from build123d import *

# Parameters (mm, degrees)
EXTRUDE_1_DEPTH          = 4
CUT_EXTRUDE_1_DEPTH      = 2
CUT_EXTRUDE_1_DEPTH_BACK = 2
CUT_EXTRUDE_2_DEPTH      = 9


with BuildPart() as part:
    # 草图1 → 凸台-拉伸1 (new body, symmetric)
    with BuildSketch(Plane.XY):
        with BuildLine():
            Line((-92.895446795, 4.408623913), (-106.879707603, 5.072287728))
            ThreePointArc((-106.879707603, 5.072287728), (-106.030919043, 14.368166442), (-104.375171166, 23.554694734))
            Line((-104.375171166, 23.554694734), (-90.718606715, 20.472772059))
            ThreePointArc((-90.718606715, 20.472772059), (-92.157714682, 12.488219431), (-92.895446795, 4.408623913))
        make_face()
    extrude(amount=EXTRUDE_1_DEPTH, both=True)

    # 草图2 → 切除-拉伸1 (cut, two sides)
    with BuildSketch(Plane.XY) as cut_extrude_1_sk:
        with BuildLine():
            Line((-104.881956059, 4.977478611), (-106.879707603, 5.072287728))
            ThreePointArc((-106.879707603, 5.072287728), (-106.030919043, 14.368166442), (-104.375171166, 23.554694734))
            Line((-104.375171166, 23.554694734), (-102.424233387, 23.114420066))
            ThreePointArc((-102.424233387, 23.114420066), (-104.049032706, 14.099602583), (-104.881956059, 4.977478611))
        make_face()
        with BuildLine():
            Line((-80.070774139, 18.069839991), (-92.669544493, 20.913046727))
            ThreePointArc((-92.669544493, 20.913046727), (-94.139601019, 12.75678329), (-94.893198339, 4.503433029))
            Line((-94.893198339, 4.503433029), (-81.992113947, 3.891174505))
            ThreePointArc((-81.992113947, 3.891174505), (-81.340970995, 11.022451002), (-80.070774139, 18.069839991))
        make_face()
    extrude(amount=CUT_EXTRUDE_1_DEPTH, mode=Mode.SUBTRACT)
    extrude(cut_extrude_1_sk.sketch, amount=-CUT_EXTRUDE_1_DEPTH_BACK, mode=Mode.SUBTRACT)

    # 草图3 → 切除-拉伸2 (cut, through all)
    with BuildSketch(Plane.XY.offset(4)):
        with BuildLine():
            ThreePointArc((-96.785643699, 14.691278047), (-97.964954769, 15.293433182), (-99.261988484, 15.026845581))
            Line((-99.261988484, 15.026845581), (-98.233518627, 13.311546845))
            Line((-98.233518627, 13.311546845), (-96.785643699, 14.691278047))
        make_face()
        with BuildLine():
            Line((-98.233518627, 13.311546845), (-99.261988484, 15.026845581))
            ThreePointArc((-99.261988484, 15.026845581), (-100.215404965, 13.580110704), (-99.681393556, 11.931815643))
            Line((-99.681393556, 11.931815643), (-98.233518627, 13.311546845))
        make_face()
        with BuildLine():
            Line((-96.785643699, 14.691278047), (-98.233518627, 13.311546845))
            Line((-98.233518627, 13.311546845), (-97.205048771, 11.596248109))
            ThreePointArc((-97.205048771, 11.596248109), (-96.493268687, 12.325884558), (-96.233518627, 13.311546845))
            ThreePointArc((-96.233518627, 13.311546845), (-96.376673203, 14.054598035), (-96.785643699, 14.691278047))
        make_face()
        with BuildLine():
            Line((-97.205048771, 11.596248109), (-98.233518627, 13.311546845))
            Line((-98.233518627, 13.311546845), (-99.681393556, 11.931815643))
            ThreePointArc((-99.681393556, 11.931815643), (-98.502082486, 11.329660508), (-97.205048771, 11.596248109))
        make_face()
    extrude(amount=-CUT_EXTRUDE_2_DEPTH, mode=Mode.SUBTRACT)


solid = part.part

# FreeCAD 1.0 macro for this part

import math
import FreeCAD as App
import Part
import Sketcher

V = App.Vector
Q = App.Units.Quantity

doc = App.newDocument("Part")
body = doc.addObject("PartDesign::Body", "Body")

# Sketch on XY plane
sketch1 = body.newObject("Sketcher::SketchObject", "Sketch")
sketch1.AttachmentSupport = (doc.getObject("XY_Plane"), [""])
sketch1.MapMode = "FlatFace"
sketch1.addGeometry([
    Part.LineSegment(V(-106.879708, 5.072288, 0), V(-92.895447, 4.408624, 0)),
    Part.ArcOfCircle(Part.Circle(V(0, 0, 0), V(0, 0, 1), 93), math.radians(167.282901), math.radians(177.282901)),
    Part.LineSegment(V(-90.718607, 20.472772, 0), V(-104.375171, 23.554695, 0)),
    Part.ArcOfCircle(Part.Circle(V(0, 0, 0), V(0, 0, 1), 107), math.radians(167.282901), math.radians(177.282901)),
], False)
sketch1.addConstraint([
    Sketcher.Constraint("Coincident", 0, 2, 1, 2),
    Sketcher.Constraint("Coincident", 1, 1, 2, 1),
    Sketcher.Constraint("Coincident", 2, 2, 3, 1),
    Sketcher.Constraint("Coincident", 3, 2, 0, 1),
    Sketcher.Constraint("Coincident", 1, 3, -1, 1),
    Sketcher.Constraint("Coincident", 3, 3, -1, 1),
    Sketcher.Constraint("Radius", 1, Q("93 mm")),
    Sketcher.Constraint("Radius", 3, Q("107 mm")),
    Sketcher.Constraint("DistanceX", 3, 2, 1, 1, Q("16.161101 mm")),
    Sketcher.Constraint("DistanceX", 2, 2, -1, 1, Q("104.375171 mm")),
    Sketcher.Constraint("DistanceX", 0, 2, 1, 1, Q("2.17684 mm")),
    Sketcher.Constraint("DistanceY", 0, 2, 1, 1, Q("16.064148 mm")),
])
pad1 = body.newObject("PartDesign::Pad", "Pad")
pad1.Profile = sketch1
pad1.Length = 8
pad1.Midplane = True

# Sketch on XY plane
sketch2 = body.newObject("Sketcher::SketchObject", "Sketch001")
sketch2.AttachmentSupport = (doc.getObject("XY_Plane"), [""])
sketch2.MapMode = "FlatFace"
sketch2.addGeometry([
    Part.LineSegment(V(-106.879708, 5.072288, 0), V(-104.881956, 4.977479, 0)),  # 0
    Part.ArcOfCircle(Part.Circle(V(0, 0, 0), V(0, 0, 1), 105), math.radians(167.282901), math.radians(177.282901)),  # 1
    Part.LineSegment(V(-102.424233, 23.11442, 0), V(-104.375171, 23.554695, 0)),  # 2
    Part.ArcOfCircle(Part.Circle(V(0, 0, 0), V(0, 0, 1), 107), math.radians(167.282901), math.radians(177.282901)),  # 3
    Part.LineSegment(V(-80.070774, 18.06984, 0), V(-92.669544, 20.913047, 0)),  # 4
    Part.ArcOfCircle(Part.Circle(V(0, 0, 0), V(0, 0, 1), 95), math.radians(167.282901), math.radians(177.282901)),  # 5
    Part.LineSegment(V(-94.893198, 4.503433, 0), V(-81.992114, 3.891175, 0)),  # 6
    Part.ArcOfCircle(Part.Circle(V(0, 0, 0), V(0, 0, 1), 82.084396), math.radians(167.282901), math.radians(177.282901)),  # 7
], False)
sketch2.addConstraint([
    Sketcher.Constraint("Coincident", 0, 2, 1, 2),
    Sketcher.Constraint("Coincident", 1, 1, 2, 1),
    Sketcher.Constraint("Coincident", 2, 2, 3, 1),
    Sketcher.Constraint("Coincident", 3, 2, 0, 1),
    Sketcher.Constraint("Coincident", 4, 2, 5, 1),
    Sketcher.Constraint("Coincident", 5, 2, 6, 1),
    Sketcher.Constraint("Coincident", 6, 2, 7, 2),
    Sketcher.Constraint("Coincident", 7, 1, 4, 1),
    Sketcher.Constraint("Coincident", 1, 3, -1, 1),
    Sketcher.Constraint("Coincident", 3, 3, -1, 1),
    Sketcher.Constraint("Coincident", 5, 3, -1, 1),
    Sketcher.Constraint("Coincident", 7, 3, -1, 1),
    Sketcher.Constraint("Parallel", 2, 4),
    Sketcher.Constraint("Parallel", 0, 6),
    Sketcher.Constraint("Radius", 1, Q("105 mm")),
    Sketcher.Constraint("Radius", 3, Q("107 mm")),
    Sketcher.Constraint("Radius", 5, Q("95 mm")),
    Sketcher.Constraint("Radius", 7, Q("82.084396 mm")),
    Sketcher.Constraint("DistanceX", 5, 2, -1, 1, Q("94.893198 mm")),
    Sketcher.Constraint("DistanceY", -1, 1, 0, 2, Q("4.977479 mm")),
    Sketcher.Constraint("DistanceY", -1, 1, 1, 1, Q("23.11442 mm")),
    Sketcher.Constraint("DistanceX", 2, 2, -1, 1, Q("104.375171 mm")),
    Sketcher.Constraint("DistanceY", -1, 1, 7, 1, Q("18.06984 mm")),
    Sketcher.Constraint("DistanceY", 6, 2, 5, 2, Q("0.612259 mm")),
])
pocket1 = body.newObject("PartDesign::Pocket", "Pocket")
pocket1.Profile = sketch2
pocket1.Type = "TwoLengths"
pocket1.Length = 2
pocket1.Length2 = 2
pocket1.Reversed = True

# Sketch on XY plane
sketch3 = body.newObject("Sketcher::SketchObject", "Sketch002")
sketch3.AttachmentSupport = (doc.getObject("XY_Plane"), [""])
sketch3.MapMode = "FlatFace"
sketch3.AttachmentOffset = App.Placement(V(0, 0, 4), App.Rotation())
sketch3.addGeometry([
    Part.ArcOfCircle(Part.Circle(V(-98.233519, 13.311547, 0), V(0, 0, 1), 2), math.radians(-136.380529), math.radians(-59.05367)),  # 0
    Part.ArcOfCircle(Part.Circle(V(-98.233519, 13.311547, 0), V(0, 0, 1), 2), math.radians(-59.05367), math.radians(0)),  # 1
    Part.ArcOfCircle(Part.Circle(V(-98.233519, 13.311547, 0), V(0, 0, 1), 2), math.radians(0), math.radians(43.619471)),  # 2
    Part.ArcOfCircle(Part.Circle(V(-98.233519, 13.311547, 0), V(0, 0, 1), 2), math.radians(43.619471), math.radians(120.94633)),  # 3
    Part.ArcOfCircle(Part.Circle(V(-98.233519, 13.311547, 0), V(0, 0, 1), 2), math.radians(120.94633), math.radians(223.619471)),  # 4
], False)
sketch3.addConstraint([
    Sketcher.Constraint("Tangent", 0, 2, 1, 1),
    Sketcher.Constraint("Tangent", 1, 2, 2, 1),
    Sketcher.Constraint("Tangent", 2, 2, 3, 1),
    Sketcher.Constraint("Tangent", 3, 2, 4, 1),
    Sketcher.Constraint("Tangent", 4, 2, 0, 1),
    Sketcher.Constraint("Coincident", 2, 3, 0, 3),
    Sketcher.Constraint("Horizontal", 4, 3, 1, 2),
    Sketcher.Constraint("Radius", 0, Q("2 mm")),
    Sketcher.Constraint("DistanceY", 0, 2, 2, 3, Q("1.715299 mm")),
    Sketcher.Constraint("DistanceY", 1, 3, 3, 2, Q("1.715299 mm")),
    Sketcher.Constraint("DistanceX", 0, 3, -1, 1, Q("98.233519 mm")),
    Sketcher.Constraint("DistanceY", -1, 1, 0, 2, Q("11.596248 mm")),
    Sketcher.Constraint("DistanceY", -1, 1, 2, 2, Q("14.691278 mm")),
    Sketcher.Constraint("DistanceY", 4, 2, 4, 3, Q("1.379731 mm")),
])
pocket2 = body.newObject("PartDesign::Pocket", "Pocket001")
pocket2.Profile = sketch3
pocket2.Type = "ThroughAll"

doc.recompute()
